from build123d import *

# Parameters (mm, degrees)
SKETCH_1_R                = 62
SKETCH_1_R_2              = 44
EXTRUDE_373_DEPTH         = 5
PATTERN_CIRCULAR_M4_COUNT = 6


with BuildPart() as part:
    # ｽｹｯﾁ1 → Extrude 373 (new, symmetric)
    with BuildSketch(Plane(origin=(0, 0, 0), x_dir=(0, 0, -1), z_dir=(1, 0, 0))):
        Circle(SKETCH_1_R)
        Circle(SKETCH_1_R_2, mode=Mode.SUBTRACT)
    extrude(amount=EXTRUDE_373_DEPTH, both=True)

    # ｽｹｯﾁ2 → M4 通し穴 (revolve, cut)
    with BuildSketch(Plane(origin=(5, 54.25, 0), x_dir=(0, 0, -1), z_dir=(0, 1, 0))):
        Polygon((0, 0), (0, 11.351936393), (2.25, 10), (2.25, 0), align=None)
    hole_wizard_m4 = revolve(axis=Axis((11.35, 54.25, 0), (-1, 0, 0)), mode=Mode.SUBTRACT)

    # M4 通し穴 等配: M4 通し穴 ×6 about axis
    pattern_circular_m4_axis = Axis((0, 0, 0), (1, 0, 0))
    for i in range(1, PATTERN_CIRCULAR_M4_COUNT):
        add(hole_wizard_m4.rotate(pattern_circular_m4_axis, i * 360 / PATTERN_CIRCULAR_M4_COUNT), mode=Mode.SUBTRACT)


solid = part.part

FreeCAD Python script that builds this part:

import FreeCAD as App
import Part
import Sketcher

V = App.Vector
Q = App.Units.Quantity


def add_polygon(sketch, points):
    """Adds a closed chain of lines whose ends are joined by coincident constraints."""
    first, n = sketch.GeometryCount, len(points)
    for a, b in zip(points, points[1:] + points[:1]):
        sketch.addGeometry(Part.LineSegment(App.Vector(*a, 0), App.Vector(*b, 0)), False)
    for i in range(n):
        sketch.addConstraint(Sketcher.Constraint("Coincident", first + i, 2, first + (i + 1) % n, 1))

doc = App.newDocument("Part")
body = doc.addObject("PartDesign::Body", "Body")

# Sketch on YZ plane
sketch1 = doc.addObject("Sketcher::SketchObject", "Sketch")
body.addObject(sketch1)
sketch1.AttachmentSupport = (doc.YZ_Plane, [""])
sketch1.MapMode = "FlatFace"
sketch1.addGeometry(Part.Circle(V(0, 0, 0), V(0, 0, 1), 62), False)
sketch1.addGeometry(Part.Circle(V(0, 0, 0), V(0, 0, 1), 44), False)
sketch1.addConstraint(Sketcher.Constraint("Coincident", 0, 3, -1, 1))
sketch1.addConstraint(Sketcher.Constraint("Coincident", 1, 3, -1, 1))
sketch1.addConstraint(Sketcher.Constraint("Diameter", 0, 124.0))
sketch1.addConstraint(Sketcher.Constraint("Diameter", 1, 88.0))
pad1 = doc.addObject("PartDesign::Pad", "Pad")
body.addObject(pad1)
pad1.Profile = sketch1
pad1.Length = 10
pad1.Midplane = True

# Sketch on XZ plane
sketch2 = doc.addObject("Sketcher::SketchObject", "Sketch001")
body.addObject(sketch2)
sketch2.AttachmentSupport = (doc.XZ_Plane, [""])
sketch2.MapMode = "FlatFace"
sketch2.AttachmentOffset = App.Placement(V(0, 0, -54.25), App.Rotation())
add_polygon(sketch2, [(-6.4, 0), (5, 0), (5, -2.2), (-5, -2.2)])  # lines 0-3
sketch2.addConstraint(Sketcher.Constraint("Horizontal", 0))
sketch2.addConstraint(Sketcher.Constraint("Vertical", 1))
sketch2.addConstraint(Sketcher.Constraint("Horizontal", 2))
sketch2.addConstraint(Sketcher.Constraint("PointOnObject", 0, 2, -1))
sketch2.addConstraint(Sketcher.Constraint("DistanceX", 2, 2, 2, 1, 10.0))
sketch2.addConstraint(Sketcher.Constraint("Angle", 3, Q("121 deg")))
sketch2.addConstraint(Sketcher.Constraint("DistanceX", -1, 1, 0, 2, 5.0))
sketch2.addConstraint(Sketcher.Constraint("DistanceY", 1, 2, 1, 1, 2.25))
groove = doc.addObject("PartDesign::Groove", "Groove")
body.addObject(groove)
groove.Profile = sketch2
groove.ReferenceAxis = (sketch2, ["H_Axis"])
groove.Angle = 360
doc.recompute()

polarpattern = doc.addObject("PartDesign::PolarPattern", "PolarPattern")
body.addObject(polarpattern)
polarpattern.Originals = [groove]
polarpattern.Axis = (doc.X_Axis, [""])
polarpattern.Angle = 360
polarpattern.Occurrences = 6
body.Tip = polarpattern

doc.recompute()
